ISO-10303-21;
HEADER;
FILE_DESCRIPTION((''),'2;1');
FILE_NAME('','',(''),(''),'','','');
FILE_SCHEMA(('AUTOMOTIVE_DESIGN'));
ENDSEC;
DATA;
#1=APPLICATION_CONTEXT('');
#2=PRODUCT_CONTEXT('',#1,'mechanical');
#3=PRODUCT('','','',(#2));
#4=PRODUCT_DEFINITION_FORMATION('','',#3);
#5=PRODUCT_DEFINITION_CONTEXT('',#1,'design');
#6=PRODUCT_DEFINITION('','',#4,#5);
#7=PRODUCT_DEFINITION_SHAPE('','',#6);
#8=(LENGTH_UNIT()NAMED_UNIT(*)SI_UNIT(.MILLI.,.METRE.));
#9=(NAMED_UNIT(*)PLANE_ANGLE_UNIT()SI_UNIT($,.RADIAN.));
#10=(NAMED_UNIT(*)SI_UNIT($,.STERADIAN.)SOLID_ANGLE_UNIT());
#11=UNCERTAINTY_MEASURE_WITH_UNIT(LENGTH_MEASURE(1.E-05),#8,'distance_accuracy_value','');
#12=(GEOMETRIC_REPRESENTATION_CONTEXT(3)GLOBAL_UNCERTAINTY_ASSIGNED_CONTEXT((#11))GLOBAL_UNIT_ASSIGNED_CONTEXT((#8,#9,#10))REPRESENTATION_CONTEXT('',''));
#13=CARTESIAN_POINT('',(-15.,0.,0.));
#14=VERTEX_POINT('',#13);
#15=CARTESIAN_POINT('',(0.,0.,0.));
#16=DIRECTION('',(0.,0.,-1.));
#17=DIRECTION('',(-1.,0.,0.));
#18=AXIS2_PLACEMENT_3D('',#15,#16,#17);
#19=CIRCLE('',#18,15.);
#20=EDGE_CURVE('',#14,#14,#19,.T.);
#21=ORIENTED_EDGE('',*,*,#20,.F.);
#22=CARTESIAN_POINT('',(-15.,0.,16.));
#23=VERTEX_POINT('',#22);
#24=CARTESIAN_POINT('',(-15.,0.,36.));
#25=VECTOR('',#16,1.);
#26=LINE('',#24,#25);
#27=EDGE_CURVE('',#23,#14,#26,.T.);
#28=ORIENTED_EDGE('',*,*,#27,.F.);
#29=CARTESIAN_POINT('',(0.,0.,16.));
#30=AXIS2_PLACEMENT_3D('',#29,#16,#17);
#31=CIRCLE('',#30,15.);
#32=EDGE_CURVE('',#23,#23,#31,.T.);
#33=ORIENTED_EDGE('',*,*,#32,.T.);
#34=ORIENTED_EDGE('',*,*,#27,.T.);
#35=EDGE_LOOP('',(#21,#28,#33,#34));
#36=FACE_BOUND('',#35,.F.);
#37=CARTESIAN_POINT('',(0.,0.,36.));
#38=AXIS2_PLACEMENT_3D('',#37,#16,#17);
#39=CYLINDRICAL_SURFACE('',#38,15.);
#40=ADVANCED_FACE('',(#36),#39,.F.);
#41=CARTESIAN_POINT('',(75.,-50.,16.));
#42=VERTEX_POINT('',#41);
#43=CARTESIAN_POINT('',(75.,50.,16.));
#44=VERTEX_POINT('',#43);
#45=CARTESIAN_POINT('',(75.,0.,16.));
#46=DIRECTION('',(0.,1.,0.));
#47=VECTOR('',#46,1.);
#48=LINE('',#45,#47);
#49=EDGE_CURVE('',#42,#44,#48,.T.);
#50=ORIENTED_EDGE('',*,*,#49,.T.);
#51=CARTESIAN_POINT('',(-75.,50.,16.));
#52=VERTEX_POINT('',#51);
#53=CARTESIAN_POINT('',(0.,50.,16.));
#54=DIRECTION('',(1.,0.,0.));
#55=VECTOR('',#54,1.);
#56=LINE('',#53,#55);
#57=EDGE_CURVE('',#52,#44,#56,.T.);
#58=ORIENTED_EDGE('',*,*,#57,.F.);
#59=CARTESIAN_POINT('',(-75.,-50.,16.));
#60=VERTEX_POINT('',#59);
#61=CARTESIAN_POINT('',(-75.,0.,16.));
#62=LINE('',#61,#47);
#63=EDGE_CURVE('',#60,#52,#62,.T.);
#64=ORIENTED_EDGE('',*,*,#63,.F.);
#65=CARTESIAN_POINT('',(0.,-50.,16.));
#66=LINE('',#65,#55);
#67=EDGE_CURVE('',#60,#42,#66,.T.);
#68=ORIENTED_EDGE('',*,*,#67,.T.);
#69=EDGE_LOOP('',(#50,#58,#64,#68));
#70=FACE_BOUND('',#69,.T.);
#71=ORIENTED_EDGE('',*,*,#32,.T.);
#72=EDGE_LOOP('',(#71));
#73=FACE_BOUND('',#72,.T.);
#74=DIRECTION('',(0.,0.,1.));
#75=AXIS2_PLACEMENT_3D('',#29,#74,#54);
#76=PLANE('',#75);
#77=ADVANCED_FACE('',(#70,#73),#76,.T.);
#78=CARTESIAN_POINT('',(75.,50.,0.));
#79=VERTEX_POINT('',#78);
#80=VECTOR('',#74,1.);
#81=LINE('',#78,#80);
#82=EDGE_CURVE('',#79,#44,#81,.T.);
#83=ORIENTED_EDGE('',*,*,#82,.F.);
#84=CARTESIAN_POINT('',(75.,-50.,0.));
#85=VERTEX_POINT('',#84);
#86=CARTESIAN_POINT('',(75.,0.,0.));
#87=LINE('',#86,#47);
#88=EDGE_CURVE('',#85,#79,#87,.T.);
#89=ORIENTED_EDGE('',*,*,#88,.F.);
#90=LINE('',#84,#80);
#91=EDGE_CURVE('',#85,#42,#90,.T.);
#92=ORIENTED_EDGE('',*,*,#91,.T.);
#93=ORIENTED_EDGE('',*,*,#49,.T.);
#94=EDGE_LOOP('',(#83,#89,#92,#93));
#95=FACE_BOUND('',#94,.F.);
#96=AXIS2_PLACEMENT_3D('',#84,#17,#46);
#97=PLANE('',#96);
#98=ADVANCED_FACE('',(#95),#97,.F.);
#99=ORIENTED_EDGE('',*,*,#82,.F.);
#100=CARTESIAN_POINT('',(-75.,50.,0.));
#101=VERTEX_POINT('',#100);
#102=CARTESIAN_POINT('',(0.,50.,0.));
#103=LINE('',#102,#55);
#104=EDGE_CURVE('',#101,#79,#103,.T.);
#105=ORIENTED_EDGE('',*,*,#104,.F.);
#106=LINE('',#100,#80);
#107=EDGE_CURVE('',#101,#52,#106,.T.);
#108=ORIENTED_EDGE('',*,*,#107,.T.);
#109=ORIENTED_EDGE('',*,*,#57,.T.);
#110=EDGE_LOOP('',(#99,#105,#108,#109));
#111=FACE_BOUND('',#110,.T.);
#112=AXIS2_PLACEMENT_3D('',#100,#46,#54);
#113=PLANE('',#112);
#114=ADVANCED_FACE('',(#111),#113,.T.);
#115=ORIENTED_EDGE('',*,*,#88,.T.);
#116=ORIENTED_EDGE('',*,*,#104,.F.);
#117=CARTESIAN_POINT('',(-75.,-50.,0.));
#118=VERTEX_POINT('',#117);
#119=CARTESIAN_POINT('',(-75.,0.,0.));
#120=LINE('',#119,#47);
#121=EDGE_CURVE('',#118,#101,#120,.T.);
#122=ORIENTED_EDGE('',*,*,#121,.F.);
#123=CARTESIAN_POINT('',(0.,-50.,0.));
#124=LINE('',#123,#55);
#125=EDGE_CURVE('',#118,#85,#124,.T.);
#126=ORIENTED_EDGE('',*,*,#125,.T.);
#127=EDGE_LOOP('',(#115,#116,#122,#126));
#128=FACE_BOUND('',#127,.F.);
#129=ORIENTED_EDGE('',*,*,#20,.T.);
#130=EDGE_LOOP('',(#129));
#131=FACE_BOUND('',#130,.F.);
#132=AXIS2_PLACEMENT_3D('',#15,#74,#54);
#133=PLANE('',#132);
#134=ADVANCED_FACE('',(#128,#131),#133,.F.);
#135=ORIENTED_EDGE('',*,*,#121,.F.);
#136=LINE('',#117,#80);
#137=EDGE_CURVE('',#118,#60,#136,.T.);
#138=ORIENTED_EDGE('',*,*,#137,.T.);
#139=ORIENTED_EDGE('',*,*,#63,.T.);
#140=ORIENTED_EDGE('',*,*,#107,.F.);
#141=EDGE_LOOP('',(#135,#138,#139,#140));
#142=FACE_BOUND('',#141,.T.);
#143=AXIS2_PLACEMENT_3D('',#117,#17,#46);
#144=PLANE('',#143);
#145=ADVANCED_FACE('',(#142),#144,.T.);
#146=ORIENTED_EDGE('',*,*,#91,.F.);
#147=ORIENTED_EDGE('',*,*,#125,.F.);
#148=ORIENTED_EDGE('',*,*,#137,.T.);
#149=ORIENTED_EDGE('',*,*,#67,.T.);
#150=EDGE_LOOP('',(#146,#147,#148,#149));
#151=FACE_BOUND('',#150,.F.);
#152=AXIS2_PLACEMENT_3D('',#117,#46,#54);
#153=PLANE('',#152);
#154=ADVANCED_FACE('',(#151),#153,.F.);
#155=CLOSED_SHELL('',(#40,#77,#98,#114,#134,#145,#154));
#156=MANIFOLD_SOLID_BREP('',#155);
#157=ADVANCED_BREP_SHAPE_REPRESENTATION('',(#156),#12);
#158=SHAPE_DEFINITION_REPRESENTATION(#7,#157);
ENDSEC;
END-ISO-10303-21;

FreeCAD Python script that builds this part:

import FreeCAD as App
import Part
import Sketcher

doc = App.newDocument("Part")
body = doc.addObject("PartDesign::Body", "Body")

# Sketch on XY plane
sketch1 = body.newObject("Sketcher::SketchObject", "Sketch")
sketch1.AttachmentSupport = (doc.getObject("XY_Plane"), [""])
sketch1.MapMode = "FlatFace"
sketch1.addGeometry([
    Part.LineSegment(App.Vector(-75, 50, 0), App.Vector(-75, -50, 0)),
    Part.LineSegment(App.Vector(-75, -50, 0), App.Vector(75, -50, 0)),
    Part.LineSegment(App.Vector(75, -50, 0), App.Vector(75, 50, 0)),
    Part.LineSegment(App.Vector(75, 50, 0), App.Vector(-75, 50, 0)),
], False)
sketch1.addConstraint([
    Sketcher.Constraint("Coincident", 0, 2, 1, 1),
    Sketcher.Constraint("Coincident", 1, 2, 2, 1),
    Sketcher.Constraint("Coincident", 2, 2, 3, 1),
    Sketcher.Constraint("Coincident", 3, 2, 0, 1),
    Sketcher.Constraint("Vertical", 0),
    Sketcher.Constraint("Horizontal", 1),
    Sketcher.Constraint("Vertical", 2),
    Sketcher.Constraint("Horizontal", 3),
    Sketcher.Constraint("Symmetric", 0, 2, 2, 2, -1, 1),
    Sketcher.Constraint("DistanceX", 1, 1, 1, 2, 150.0),
    Sketcher.Constraint("DistanceY", 0, 2, 0, 1, 100.0),
])
pad1 = body.newObject("PartDesign::Pad", "Pad")
pad1.Profile = sketch1
pad1.Length = 16

# Sketch on XY plane
sketch2 = body.newObject("Sketcher::SketchObject", "Sketch001")
sketch2.AttachmentSupport = (doc.getObject("XY_Plane"), [""])
sketch2.MapMode = "FlatFace"
sketch2.AttachmentOffset = App.Placement(App.Vector(0, 0, 16), App.Rotation())
sketch2.addGeometry(Part.Circle(App.Vector(0, 0, 0), App.Vector(0, 0, 1), 15), False)
sketch2.addConstraint([
    Sketcher.Constraint("Coincident", 0, 3, -1, 1),
    Sketcher.Constraint("Diameter", 0, 30.0),
])
doc.recompute()
hole = body.newObject("PartDesign::Hole", "Hole")
hole.Profile = sketch2
hole.ThreadType = "None"
hole.Diameter = 30
hole.DepthType = "Dimension"
hole.Depth = 20
hole.DrillPoint = "Angled"
hole.DrillPointAngle = 118

doc.recompute()
